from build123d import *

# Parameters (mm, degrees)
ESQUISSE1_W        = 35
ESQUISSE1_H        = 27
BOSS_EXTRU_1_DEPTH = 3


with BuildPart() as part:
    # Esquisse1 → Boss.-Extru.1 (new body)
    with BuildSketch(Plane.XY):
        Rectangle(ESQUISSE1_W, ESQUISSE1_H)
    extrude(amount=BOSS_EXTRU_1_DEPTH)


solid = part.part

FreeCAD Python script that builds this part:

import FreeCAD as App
import Part
import Sketcher

V = App.Vector
Q = App.Units.Quantity


def add_polygon(sketch, points):
    """Adds a closed chain of lines whose ends are joined by coincident constraints."""
    first, n = sketch.GeometryCount, len(points)
    for a, b in zip(points, points[1:] + points[:1]):
        sketch.addGeometry(Part.LineSegment(App.Vector(*a, 0), App.Vector(*b, 0)), False)
    for i in range(n):
        sketch.addConstraint(Sketcher.Constraint("Coincident", first + i, 2, first + (i + 1) % n, 1))

doc = App.newDocument("Part")
params = doc.addObject("Spreadsheet::Sheet", "Params")
for row, (alias, value) in enumerate([
    ("sketch1_width", "35 mm"),
    ("sketch1_height", "27 mm"),
    ("pad1_length", "3 mm"),
], start=1):
    params.set(f"A{row}", alias)
    params.set(f"B{row}", "=" + value)
    params.setAlias(f"B{row}", alias)

body = doc.addObject("PartDesign::Body", "Body")

# Sketch on XY plane
sketch1 = body.newObject("Sketcher::SketchObject", "Sketch")
sketch1.AttachmentSupport = (doc.getObject("XY_Plane"), [""])
sketch1.MapMode = "FlatFace"
add_polygon(sketch1, [(-17.5, 13.5), (-17.5, -13.5), (17.5, -13.5), (17.5, 13.5)])  # lines 0-3
sketch1.addConstraint([
    Sketcher.Constraint("Vertical", 0),
    Sketcher.Constraint("Horizontal", 1),
    Sketcher.Constraint("Vertical", 2),
    Sketcher.Constraint("Horizontal", 3),
    Sketcher.Constraint("Symmetric", 0, 2, 2, 2, -1, 1),
    Sketcher.Constraint("DistanceX", 1, 1, 1, 2, Q("35 mm")),
    Sketcher.Constraint("DistanceY", 0, 2, 0, 1, Q("27 mm")),
])
sketch1.setExpression("Constraints[9]", "Params.sketch1_width")
sketch1.setExpression("Constraints[10]", "Params.sketch1_height")
pad1 = body.newObject("PartDesign::Pad", "Pad")
pad1.Profile = sketch1
pad1.setExpression("Length", "Params.pad1_length")

doc.recompute()
